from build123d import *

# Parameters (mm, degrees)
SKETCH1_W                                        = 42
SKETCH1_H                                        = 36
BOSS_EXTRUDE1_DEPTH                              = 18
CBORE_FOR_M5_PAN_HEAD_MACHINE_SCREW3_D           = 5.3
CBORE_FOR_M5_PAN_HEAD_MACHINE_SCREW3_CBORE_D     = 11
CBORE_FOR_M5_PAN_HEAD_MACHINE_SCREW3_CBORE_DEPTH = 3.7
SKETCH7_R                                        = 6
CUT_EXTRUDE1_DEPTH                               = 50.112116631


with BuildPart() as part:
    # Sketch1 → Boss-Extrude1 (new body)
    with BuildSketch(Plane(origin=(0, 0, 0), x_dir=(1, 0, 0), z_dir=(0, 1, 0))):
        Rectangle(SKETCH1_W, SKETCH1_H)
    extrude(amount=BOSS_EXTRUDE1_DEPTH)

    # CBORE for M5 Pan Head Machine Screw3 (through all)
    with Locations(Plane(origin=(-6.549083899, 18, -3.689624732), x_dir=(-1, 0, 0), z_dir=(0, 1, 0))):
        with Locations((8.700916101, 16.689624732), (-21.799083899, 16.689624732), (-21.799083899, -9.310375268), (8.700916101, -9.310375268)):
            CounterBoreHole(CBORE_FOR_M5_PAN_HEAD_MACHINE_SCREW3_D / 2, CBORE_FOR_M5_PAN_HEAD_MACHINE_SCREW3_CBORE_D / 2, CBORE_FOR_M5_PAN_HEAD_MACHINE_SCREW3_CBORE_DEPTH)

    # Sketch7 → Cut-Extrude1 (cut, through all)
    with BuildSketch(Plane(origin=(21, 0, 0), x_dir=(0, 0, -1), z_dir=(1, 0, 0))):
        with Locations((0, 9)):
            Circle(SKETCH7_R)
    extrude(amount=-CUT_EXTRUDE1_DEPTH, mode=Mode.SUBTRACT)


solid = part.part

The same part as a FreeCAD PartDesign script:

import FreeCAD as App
import Part
import Sketcher
Q = App.Units.Quantity


def add_polygon(sketch, points):
    """Adds a closed chain of lines whose ends are joined by coincident constraints."""
    first, n = sketch.GeometryCount, len(points)
    for a, b in zip(points, points[1:] + points[:1]):
        sketch.addGeometry(Part.LineSegment(App.Vector(*a, 0), App.Vector(*b, 0)), False)
    for i in range(n):
        sketch.addConstraint(Sketcher.Constraint("Coincident", first + i, 2, first + (i + 1) % n, 1))

doc = App.newDocument("Part")
body = doc.addObject("PartDesign::Body", "Body")

# Sketch on XZ plane
sketch1 = doc.addObject("Sketcher::SketchObject", "Sketch")
body.addObject(sketch1)
sketch1.AttachmentSupport = (doc.XZ_Plane, [""])
sketch1.MapMode = "FlatFace"
add_polygon(sketch1, [(-21, -18), (-21, 18), (21, 18), (21, -18)])  # lines 0-3
sketch1.addConstraint([
    Sketcher.Constraint("Vertical", 0),
    Sketcher.Constraint("Horizontal", 1),
    Sketcher.Constraint("Vertical", 2),
    Sketcher.Constraint("Horizontal", 3),
    Sketcher.Constraint("Symmetric", 0, 2, 2, 2, -1, 1),
    Sketcher.Constraint("DistanceX", 1, 1, 1, 2, Q("42 mm")),
    Sketcher.Constraint("DistanceY", 0, 1, 0, 2, Q("36 mm")),
])
pad1 = doc.addObject("PartDesign::Pad", "Pad")
body.addObject(pad1)
pad1.Profile = sketch1
pad1.Length = 18
pad1.Reversed = True

# Sketch on XZ plane
sketch2 = doc.addObject("Sketcher::SketchObject", "Sketch001")
body.addObject(sketch2)
sketch2.AttachmentSupport = (doc.XZ_Plane, [""])
sketch2.MapMode = "FlatFace"
sketch2.AttachmentOffset = App.Placement(App.Vector(0, 0, -18), App.Rotation())
sketch2.addGeometry([
    Part.Circle(App.Vector(-15.2, 13, 0), App.Vector(0, 0, 1), 2.6),
    Part.Circle(App.Vector(15.2, 13, 0), App.Vector(0, 0, 1), 2.6),
    Part.Circle(App.Vector(15.2, -13, 0), App.Vector(0, 0, 1), 2.6),
    Part.Circle(App.Vector(-15.2, -13, 0), App.Vector(0, 0, 1), 2.6),
], False)
sketch2.addConstraint([
    Sketcher.Constraint("Equal", 0, 1),
    Sketcher.Constraint("Equal", 1, 2),
    Sketcher.Constraint("Equal", 2, 3),
    Sketcher.Constraint("Symmetric", 0, 3, 2, 3, -1, 1),
    Sketcher.Constraint("Symmetric", 1, 3, 3, 3, -1, 1),
    Sketcher.Constraint("Symmetric", 0, 3, 1, 3, -2),
    Sketcher.Constraint("Diameter", 0, Q("5.3 mm")),
    Sketcher.Constraint("DistanceY", -1, 1, 0, 3, Q("13 mm")),
    Sketcher.Constraint("DistanceX", 0, 3, 1, 3, Q("30.5 mm")),
])
doc.recompute()
hole = doc.addObject("PartDesign::Hole", "Hole")
body.addObject(hole)
hole.Profile = sketch2
hole.ThreadType = "None"
hole.Diameter = 5.3
hole.DepthType = "ThroughAll"
hole.HoleCutType = "Counterbore"
hole.HoleCutDiameter = 11
hole.HoleCutDepth = 3.7
hole.Reversed = True

# Sketch on YZ plane
sketch3 = doc.addObject("Sketcher::SketchObject", "Sketch002")
body.addObject(sketch3)
sketch3.AttachmentSupport = (doc.YZ_Plane, [""])
sketch3.MapMode = "FlatFace"
sketch3.AttachmentOffset = App.Placement(App.Vector(0, 0, 21), App.Rotation())
sketch3.addGeometry(Part.Circle(App.Vector(9, 0, 0), App.Vector(0, 0, 1), 6), False)
sketch3.addConstraint([
    Sketcher.Constraint("PointOnObject", 0, 3, -1),
    Sketcher.Constraint("Diameter", 0, Q("12 mm")),
    Sketcher.Constraint("DistanceX", -1, 1, 0, 3, Q("9 mm")),
])
pocket1 = doc.addObject("PartDesign::Pocket", "Pocket")
body.addObject(pocket1)
pocket1.Profile = sketch3
pocket1.Type = "ThroughAll"

doc.recompute()
